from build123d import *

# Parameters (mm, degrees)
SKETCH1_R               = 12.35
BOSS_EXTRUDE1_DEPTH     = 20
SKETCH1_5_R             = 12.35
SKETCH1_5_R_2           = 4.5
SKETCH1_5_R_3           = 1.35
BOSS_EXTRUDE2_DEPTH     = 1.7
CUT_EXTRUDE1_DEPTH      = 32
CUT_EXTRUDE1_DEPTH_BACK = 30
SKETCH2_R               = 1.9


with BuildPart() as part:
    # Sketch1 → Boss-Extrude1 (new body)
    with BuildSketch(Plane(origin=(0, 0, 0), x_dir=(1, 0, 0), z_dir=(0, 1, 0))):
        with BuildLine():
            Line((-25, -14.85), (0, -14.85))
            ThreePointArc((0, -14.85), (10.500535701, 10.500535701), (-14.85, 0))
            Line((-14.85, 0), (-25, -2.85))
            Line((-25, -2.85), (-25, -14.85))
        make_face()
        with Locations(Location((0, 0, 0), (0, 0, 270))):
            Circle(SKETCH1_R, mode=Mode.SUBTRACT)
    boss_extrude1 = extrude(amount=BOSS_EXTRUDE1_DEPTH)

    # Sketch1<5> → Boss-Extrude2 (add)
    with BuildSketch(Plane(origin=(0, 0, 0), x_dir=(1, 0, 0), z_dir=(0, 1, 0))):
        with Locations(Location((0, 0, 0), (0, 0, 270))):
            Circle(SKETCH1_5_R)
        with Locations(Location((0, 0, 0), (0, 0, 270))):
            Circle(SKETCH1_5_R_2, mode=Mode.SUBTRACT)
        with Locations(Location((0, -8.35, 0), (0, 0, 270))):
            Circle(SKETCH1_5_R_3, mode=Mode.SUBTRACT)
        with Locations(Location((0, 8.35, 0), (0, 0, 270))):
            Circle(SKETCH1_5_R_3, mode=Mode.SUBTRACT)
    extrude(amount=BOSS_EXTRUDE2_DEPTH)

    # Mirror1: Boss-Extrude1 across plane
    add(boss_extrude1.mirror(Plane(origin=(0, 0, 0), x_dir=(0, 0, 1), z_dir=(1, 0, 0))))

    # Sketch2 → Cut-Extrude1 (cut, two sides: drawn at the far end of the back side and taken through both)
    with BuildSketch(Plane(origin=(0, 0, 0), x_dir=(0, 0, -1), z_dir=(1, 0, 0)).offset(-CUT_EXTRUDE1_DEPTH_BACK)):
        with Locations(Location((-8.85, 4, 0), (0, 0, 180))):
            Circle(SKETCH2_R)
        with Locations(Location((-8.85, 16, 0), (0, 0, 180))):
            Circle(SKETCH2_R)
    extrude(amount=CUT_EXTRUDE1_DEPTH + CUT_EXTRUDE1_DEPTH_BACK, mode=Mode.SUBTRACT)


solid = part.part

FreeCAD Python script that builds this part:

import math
import FreeCAD as App
import Part
import Sketcher

V = App.Vector

doc = App.newDocument("Part")
params = doc.addObject("Spreadsheet::Sheet", "Params")
for row, (alias, value) in enumerate([
    ("sketch1_diameter", "24.7 mm"),
    ("sketch1_width", "25 mm"),
    ("sketch1_height", "12 mm"),
    ("sketch1_radius", "14.85 mm"),
    ("pad1_length", "20 mm"),
    ("sketch2_diameter", "9 mm"),
    ("sketch2_diameter2", "24.7 mm"),
    ("sketch2_diameter3", "2.7 mm"),
    ("pad2_length", "1.7 mm"),
    ("sketch3_diameter", "3.8 mm"),
], start=1):
    params.set(f"A{row}", alias)
    params.set(f"B{row}", "=" + value)
    params.setAlias(f"B{row}", alias)

body = doc.addObject("PartDesign::Body", "Body")

# Sketch on XZ plane
sketch1 = doc.addObject("Sketcher::SketchObject", "Sketch")
body.addObject(sketch1)
sketch1.AttachmentSupport = (doc.XZ_Plane, [""])
sketch1.MapMode = "FlatFace"
sketch1.addGeometry([
    Part.LineSegment(V(-25, 15, 0), V(0, 15, 0)),  # 0
    Part.ArcOfCircle(Part.Circle(V(0, 0, 0), V(0, 0, 1), 15), math.radians(180), math.radians(450)),  # 1
    Part.LineSegment(V(-15, 0, 0), V(-25, 3, 0)),  # 2
    Part.LineSegment(V(-25, 3, 0), V(-25, 15, 0)),  # 3
    Part.Circle(V(0, 0, 0), V(0, 0, 1), 12),  # 4
], False)
sketch1.addConstraint([
    Sketcher.Constraint("Tangent", 0, 2, 1, 2),
    Sketcher.Constraint("Coincident", 1, 1, 2, 1),
    Sketcher.Constraint("Coincident", 2, 2, 3, 1),
    Sketcher.Constraint("Coincident", 3, 2, 0, 1),
    Sketcher.Constraint("Horizontal", 0),
    Sketcher.Constraint("Vertical", 3),
    Sketcher.Constraint("Coincident", 1, 3, -1, 1),
    Sketcher.Constraint("Coincident", 4, 3, -1, 1),
    Sketcher.Constraint("PointOnObject", 1, 1, -1),
    Sketcher.Constraint("Diameter", 4, 24.7),
    Sketcher.Constraint("DistanceX", 0, 1, 0, 2, 25.0),
    Sketcher.Constraint("DistanceY", 3, 1, 3, 2, 12.0),
    Sketcher.Constraint("Radius", 1, 14.85),
])
sketch1.setExpression("Constraints[9]", "Params.sketch1_diameter")
sketch1.setExpression("Constraints[10]", "Params.sketch1_width")
sketch1.setExpression("Constraints[11]", "Params.sketch1_height")
sketch1.setExpression("Constraints[12]", "Params.sketch1_radius")
pad1 = doc.addObject("PartDesign::Pad", "Pad")
body.addObject(pad1)
pad1.Profile = sketch1
pad1.setExpression("Length", "Params.pad1_length")
pad1.Reversed = True

# Sketch on XZ plane
sketch2 = doc.addObject("Sketcher::SketchObject", "Sketch001")
body.addObject(sketch2)
sketch2.AttachmentSupport = (doc.XZ_Plane, [""])
sketch2.MapMode = "FlatFace"
sketch2.addGeometry([
    Part.Circle(V(0, 0, 0), V(0, 0, 1), 12.3),
    Part.Circle(V(0, -8.3, 0), V(0, 0, 1), 1.4),
    Part.Circle(V(0, 0, 0), V(0, 0, 1), 4.5),
    Part.Circle(V(0, 8.3, 0), V(0, 0, 1), 1.4),
], False)
sketch2.addConstraint([
    Sketcher.Constraint("Coincident", 0, 3, -1, 1),
    Sketcher.Constraint("Coincident", 2, 3, -1, 1),
    Sketcher.Constraint("Equal", 1, 3),
    Sketcher.Constraint("Symmetric", 1, 3, 3, 3, -1, 1),
    Sketcher.Constraint("PointOnObject", 1, 3, -2),
    Sketcher.Constraint("Diameter", 2, 9.0),
    Sketcher.Constraint("Diameter", 0, 24.7),
    Sketcher.Constraint("Diameter", 1, 2.7),
    Sketcher.Constraint("DistanceY", 1, 3, 3, 3, 16.7),
])
sketch2.setExpression("Constraints[5]", "Params.sketch2_diameter")
sketch2.setExpression("Constraints[6]", "Params.sketch2_diameter2")
sketch2.setExpression("Constraints[7]", "Params.sketch2_diameter3")
pad2 = doc.addObject("PartDesign::Pad", "Pad001")
body.addObject(pad2)
pad2.Profile = sketch2
pad2.setExpression("Length", "Params.pad2_length")
pad2.Reversed = True
doc.recompute()

mirrored = doc.addObject("PartDesign::Mirrored", "Mirrored")
body.addObject(mirrored)
mirrored.Originals = [pad1]
mirrored.MirrorPlane = (doc.YZ_Plane, [""])
body.Tip = mirrored

# Sketch on YZ plane
sketch3 = doc.addObject("Sketcher::SketchObject", "Sketch002")
body.addObject(sketch3)
sketch3.AttachmentSupport = (doc.YZ_Plane, [""])
sketch3.MapMode = "FlatFace"
sketch3.addGeometry([
    Part.Circle(V(4, 8.8, 0), V(0, 0, 1), 1.9),
    Part.Circle(V(16, 8.8, 0), V(0, 0, 1), 1.9),
], False)
sketch3.addConstraint([
    Sketcher.Constraint("Equal", 0, 1),
    Sketcher.Constraint("Horizontal", 0, 3, 1, 3),
    Sketcher.Constraint("Diameter", 0, 3.8),
    Sketcher.Constraint("DistanceX", -1, 1, 0, 3, 4.0),
    Sketcher.Constraint("DistanceX", -1, 1, 1, 3, 16.0),
    Sketcher.Constraint("DistanceY", -1, 1, 0, 3, 8.85),
])
sketch3.setExpression("Constraints[2]", "Params.sketch3_diameter")
pocket1 = doc.addObject("PartDesign::Pocket", "Pocket")
body.addObject(pocket1)
pocket1.Profile = sketch3
pocket1.Type = "ThroughAll"
pocket1.Midplane = True

doc.recompute()
